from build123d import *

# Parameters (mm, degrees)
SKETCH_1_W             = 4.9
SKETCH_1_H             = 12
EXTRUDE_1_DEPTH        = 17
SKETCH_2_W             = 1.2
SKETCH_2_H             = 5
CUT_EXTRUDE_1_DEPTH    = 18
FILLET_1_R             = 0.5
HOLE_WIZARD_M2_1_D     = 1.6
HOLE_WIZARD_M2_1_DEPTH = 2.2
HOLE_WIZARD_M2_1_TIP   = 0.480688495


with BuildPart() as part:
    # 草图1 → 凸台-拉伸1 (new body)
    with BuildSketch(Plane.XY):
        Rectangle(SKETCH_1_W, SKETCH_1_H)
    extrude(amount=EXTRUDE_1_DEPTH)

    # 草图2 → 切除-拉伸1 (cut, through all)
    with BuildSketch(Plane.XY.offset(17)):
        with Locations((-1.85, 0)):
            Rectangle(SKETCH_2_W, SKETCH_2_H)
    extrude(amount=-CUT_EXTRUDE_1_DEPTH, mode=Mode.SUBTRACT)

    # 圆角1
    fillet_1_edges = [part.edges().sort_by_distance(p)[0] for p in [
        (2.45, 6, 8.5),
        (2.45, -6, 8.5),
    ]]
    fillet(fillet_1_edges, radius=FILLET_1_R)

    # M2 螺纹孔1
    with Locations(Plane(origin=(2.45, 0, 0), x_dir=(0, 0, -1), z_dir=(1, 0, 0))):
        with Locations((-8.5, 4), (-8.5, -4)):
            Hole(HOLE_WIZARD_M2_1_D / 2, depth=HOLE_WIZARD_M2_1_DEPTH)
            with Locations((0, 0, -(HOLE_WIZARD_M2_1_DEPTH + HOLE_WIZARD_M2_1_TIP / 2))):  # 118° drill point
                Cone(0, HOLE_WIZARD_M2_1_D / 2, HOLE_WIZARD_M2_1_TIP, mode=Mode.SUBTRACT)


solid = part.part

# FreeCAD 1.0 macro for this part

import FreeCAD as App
import Part
import Sketcher

V = App.Vector


def edges_at(feature, points):
    """Names of the edges that pass closest to the given points."""
    edges = feature.Shape.Edges
    near = lambda p: min(range(len(edges)), key=lambda i: edges[i].distToShape(Part.Vertex(*p))[0])
    return sorted({f"Edge{near(p) + 1}" for p in points})

doc = App.newDocument("Part")
body = doc.addObject("PartDesign::Body", "Body")

sketch1 = body.newObject("Sketcher::SketchObject", "Sketch")
sketch1.AttachmentSupport = (doc.getObject("XY_Plane"), [""])
sketch1.MapMode = "FlatFace"
sketch1.addGeometry([
    Part.LineSegment(V(-2.45, 6, 0), V(-2.45, -6, 0)),
    Part.LineSegment(V(-2.45, -6, 0), V(2.45, -6, 0)),
    Part.LineSegment(V(2.45, -6, 0), V(2.45, 6, 0)),
    Part.LineSegment(V(2.45, 6, 0), V(-2.45, 6, 0)),
], False)
sketch1.addConstraint([
    Sketcher.Constraint("Coincident", 0, 2, 1, 1),
    Sketcher.Constraint("Coincident", 1, 2, 2, 1),
    Sketcher.Constraint("Coincident", 2, 2, 3, 1),
    Sketcher.Constraint("Coincident", 3, 2, 0, 1),
    Sketcher.Constraint("Vertical", 0),
    Sketcher.Constraint("Horizontal", 1),
    Sketcher.Constraint("Vertical", 2),
    Sketcher.Constraint("Horizontal", 3),
    Sketcher.Constraint("Symmetric", 0, 2, 2, 2, -1, 1),
    Sketcher.Constraint("DistanceY", 0, 2, 0, 1, 12.0),
    Sketcher.Constraint("DistanceX", 1, 1, 1, 2, 4.9),
])
pad1 = body.newObject("PartDesign::Pad", "Pad")
pad1.Profile = sketch1
pad1.Length = 17

sketch2 = body.newObject("Sketcher::SketchObject", "Sketch001")
sketch2.AttachmentSupport = (doc.getObject("XY_Plane"), [""])
sketch2.MapMode = "FlatFace"
sketch2.AttachmentOffset = App.Placement(V(0, 0, 17), App.Rotation())
sketch2.addGeometry([
    Part.LineSegment(V(-2.45, 2.5, 0), V(-2.45, -2.5, 0)),
    Part.LineSegment(V(-2.45, -2.5, 0), V(-1.25, -2.5, 0)),
    Part.LineSegment(V(-1.25, -2.5, 0), V(-1.25, 2.5, 0)),
    Part.LineSegment(V(-1.25, 2.5, 0), V(-2.45, 2.5, 0)),
], False)
sketch2.addConstraint([
    Sketcher.Constraint("Coincident", 0, 2, 1, 1),
    Sketcher.Constraint("Coincident", 1, 2, 2, 1),
    Sketcher.Constraint("Coincident", 2, 2, 3, 1),
    Sketcher.Constraint("Coincident", 3, 2, 0, 1),
    Sketcher.Constraint("Vertical", 0),
    Sketcher.Constraint("Horizontal", 1),
    Sketcher.Constraint("Vertical", 2),
    Sketcher.Constraint("Horizontal", 3),
    Sketcher.Constraint("DistanceY", 0, 2, 0, 1, 5.0),
    Sketcher.Constraint("DistanceX", 1, 1, 1, 2, 1.2),
    Sketcher.Constraint("DistanceY", 0, 2, -1, 1, 2.5),
    Sketcher.Constraint("DistanceX", 0, 2, -1, 1, 2.45),
])
pocket1 = body.newObject("PartDesign::Pocket", "Pocket")
pocket1.Profile = sketch2
pocket1.Type = "ThroughAll"
doc.recompute()

fillet = body.newObject("PartDesign::Fillet", "Fillet")
fillet.Base = (pocket1, edges_at(pocket1, [(2.45, 6, 8.5), (2.45, -6, 8.5)]))
fillet.Radius = 0.5

sketch3 = body.newObject("Sketcher::SketchObject", "Sketch002")
sketch3.AttachmentSupport = (doc.getObject("YZ_Plane"), [""])
sketch3.MapMode = "FlatFace"
sketch3.AttachmentOffset = App.Placement(V(0, 0, 2.45), App.Rotation())
sketch3.addGeometry([
    Part.Circle(V(4, 8.5, 0), V(0, 0, 1), 0.8),
    Part.Circle(V(-4, 8.5, 0), V(0, 0, 1), 0.8),
], False)
sketch3.addConstraint([
    Sketcher.Constraint("Equal", 0, 1),
    Sketcher.Constraint("Symmetric", 0, 3, 1, 3, -2),
    Sketcher.Constraint("Diameter", 0, 1.6),
    Sketcher.Constraint("DistanceX", -1, 1, 0, 3, 4.0),
    Sketcher.Constraint("DistanceY", -1, 1, 0, 3, 8.5),
])
doc.recompute()
hole = body.newObject("PartDesign::Hole", "Hole")
hole.Profile = sketch3
hole.ThreadType = "None"
hole.Diameter = 1.6
hole.DepthType = "Dimension"
hole.Depth = 2.2
hole.DrillPoint = "Angled"
hole.DrillPointAngle = 118

doc.recompute()
